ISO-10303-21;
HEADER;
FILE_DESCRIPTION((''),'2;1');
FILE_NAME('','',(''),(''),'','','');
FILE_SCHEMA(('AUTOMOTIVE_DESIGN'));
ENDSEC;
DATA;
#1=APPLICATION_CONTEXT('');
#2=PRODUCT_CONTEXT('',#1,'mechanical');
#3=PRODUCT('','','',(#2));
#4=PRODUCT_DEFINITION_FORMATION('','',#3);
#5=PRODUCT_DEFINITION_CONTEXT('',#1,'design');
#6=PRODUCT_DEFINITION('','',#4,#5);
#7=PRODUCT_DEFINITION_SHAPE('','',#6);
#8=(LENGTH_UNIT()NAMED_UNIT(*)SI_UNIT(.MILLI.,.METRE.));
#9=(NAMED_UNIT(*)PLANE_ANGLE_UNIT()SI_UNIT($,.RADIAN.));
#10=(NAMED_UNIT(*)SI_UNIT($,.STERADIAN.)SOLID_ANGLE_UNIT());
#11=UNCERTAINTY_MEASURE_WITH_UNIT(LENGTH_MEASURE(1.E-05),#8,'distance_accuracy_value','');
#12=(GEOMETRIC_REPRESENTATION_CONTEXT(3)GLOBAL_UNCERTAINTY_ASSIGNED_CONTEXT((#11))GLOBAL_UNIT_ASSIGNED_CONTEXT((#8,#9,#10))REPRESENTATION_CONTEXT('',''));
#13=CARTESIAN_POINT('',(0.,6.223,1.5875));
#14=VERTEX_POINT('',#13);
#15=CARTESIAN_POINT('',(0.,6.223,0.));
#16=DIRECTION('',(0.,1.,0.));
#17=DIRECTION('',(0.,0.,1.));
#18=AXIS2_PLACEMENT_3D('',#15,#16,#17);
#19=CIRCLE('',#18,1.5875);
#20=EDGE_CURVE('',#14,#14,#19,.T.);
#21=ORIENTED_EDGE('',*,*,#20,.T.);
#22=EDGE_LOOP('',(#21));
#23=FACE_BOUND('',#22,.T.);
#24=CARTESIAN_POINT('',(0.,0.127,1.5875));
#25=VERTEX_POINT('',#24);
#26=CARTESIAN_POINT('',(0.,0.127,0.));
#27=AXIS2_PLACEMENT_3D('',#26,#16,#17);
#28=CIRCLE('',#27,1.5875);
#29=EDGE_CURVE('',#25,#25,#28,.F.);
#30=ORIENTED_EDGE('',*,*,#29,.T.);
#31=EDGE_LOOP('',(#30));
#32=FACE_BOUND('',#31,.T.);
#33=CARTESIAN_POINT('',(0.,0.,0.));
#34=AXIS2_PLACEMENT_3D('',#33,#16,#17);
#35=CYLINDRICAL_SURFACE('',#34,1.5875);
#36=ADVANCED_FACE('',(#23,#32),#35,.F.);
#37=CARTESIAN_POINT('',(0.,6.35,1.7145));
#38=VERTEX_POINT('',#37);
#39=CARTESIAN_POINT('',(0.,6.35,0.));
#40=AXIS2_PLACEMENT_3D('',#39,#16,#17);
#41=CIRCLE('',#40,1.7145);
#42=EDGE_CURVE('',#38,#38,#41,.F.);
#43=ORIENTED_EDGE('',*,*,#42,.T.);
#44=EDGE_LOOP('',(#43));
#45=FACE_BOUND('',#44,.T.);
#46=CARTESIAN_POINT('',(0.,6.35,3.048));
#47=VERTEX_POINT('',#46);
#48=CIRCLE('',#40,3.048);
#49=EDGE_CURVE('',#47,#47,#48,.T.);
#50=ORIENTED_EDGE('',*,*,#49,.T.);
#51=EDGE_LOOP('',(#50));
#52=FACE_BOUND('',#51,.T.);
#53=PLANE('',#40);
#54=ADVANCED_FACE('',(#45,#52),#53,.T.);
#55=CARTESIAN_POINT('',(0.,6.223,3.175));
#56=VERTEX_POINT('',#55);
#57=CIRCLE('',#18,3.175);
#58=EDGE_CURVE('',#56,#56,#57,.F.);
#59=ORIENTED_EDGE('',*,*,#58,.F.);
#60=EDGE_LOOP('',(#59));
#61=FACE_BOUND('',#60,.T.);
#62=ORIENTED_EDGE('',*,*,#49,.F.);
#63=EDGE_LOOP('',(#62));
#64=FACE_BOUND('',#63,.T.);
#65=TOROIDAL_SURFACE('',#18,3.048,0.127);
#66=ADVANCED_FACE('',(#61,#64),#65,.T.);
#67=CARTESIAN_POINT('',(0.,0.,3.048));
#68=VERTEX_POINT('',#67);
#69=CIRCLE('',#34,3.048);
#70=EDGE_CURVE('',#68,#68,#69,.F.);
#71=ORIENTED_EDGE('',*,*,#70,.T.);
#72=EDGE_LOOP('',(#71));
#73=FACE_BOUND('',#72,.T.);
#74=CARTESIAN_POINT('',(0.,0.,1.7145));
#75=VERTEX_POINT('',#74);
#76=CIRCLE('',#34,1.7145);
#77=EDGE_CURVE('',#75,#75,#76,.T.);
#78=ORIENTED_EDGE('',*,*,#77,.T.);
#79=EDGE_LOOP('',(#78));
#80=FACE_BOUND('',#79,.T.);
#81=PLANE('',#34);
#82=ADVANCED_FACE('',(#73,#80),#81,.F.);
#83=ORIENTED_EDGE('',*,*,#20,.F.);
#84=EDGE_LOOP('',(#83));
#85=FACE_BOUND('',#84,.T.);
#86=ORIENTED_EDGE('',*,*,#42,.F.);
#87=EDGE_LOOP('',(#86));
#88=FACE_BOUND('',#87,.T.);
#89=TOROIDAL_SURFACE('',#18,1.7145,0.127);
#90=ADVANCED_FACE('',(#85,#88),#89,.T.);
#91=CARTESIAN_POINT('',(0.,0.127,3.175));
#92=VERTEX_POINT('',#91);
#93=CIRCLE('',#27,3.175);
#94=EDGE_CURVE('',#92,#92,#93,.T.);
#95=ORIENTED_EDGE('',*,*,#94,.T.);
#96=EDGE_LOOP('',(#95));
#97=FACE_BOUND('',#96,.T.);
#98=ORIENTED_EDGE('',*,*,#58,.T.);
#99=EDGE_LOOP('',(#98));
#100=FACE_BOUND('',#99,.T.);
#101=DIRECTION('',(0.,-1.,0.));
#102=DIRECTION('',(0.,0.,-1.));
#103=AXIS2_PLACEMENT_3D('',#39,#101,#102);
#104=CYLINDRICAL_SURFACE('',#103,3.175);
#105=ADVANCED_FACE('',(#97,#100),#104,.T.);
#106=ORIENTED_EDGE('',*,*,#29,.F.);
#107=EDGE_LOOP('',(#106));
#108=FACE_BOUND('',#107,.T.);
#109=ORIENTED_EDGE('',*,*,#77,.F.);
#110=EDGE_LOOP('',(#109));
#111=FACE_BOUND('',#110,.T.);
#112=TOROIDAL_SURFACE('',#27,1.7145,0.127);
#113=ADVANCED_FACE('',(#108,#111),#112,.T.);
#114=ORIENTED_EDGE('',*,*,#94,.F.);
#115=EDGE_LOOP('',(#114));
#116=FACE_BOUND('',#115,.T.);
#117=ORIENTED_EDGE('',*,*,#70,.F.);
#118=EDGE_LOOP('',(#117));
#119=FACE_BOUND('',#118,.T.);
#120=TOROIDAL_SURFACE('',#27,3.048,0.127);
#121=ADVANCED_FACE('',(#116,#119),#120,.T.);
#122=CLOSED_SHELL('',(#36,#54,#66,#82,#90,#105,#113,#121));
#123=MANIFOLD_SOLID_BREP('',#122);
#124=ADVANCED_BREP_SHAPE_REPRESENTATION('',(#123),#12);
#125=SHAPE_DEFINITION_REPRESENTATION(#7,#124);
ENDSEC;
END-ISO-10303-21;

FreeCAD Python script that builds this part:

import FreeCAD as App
import Part
import Sketcher
from FreeCAD import Vector
Q = App.Units.Quantity


def edges_at(feature, points):
    """Names of the edges that pass closest to the given points."""
    edges = feature.Shape.Edges
    near = lambda p: min(range(len(edges)), key=lambda i: edges[i].distToShape(Part.Vertex(*p))[0])
    return sorted({f"Edge{near(p) + 1}" for p in points})

doc = App.newDocument("Part")
params = doc.addObject("Spreadsheet::Sheet", "Params")
for row, (alias, value) in enumerate([
    ("sketch1_diameter", "0.25 in"),
    ("pad1_length", "0.25 in"),
    ("sketch2_diameter", "0.125 in"),
    ("fillet_radius", "0.005 in"),
], start=1):
    params.set(f"A{row}", alias)
    params.set(f"B{row}", "=" + value)
    params.setAlias(f"B{row}", alias)

body = doc.addObject("PartDesign::Body", "Body")

# Sketch on XZ plane
sketch1 = doc.addObject("Sketcher::SketchObject", "Sketch")
body.addObject(sketch1)
sketch1.AttachmentSupport = (doc.XZ_Plane, [""])
sketch1.MapMode = "FlatFace"
sketch1.addGeometry(Part.Circle(Vector(0, 0, 0), Vector(0, 0, 1), 3.175), False)
sketch1.addConstraint([
    Sketcher.Constraint("Coincident", 0, 3, -1, 1),
    Sketcher.Constraint("Diameter", 0, Q("0.25 in")),
])
sketch1.setExpression("Constraints[1]", "Params.sketch1_diameter")
pad1 = doc.addObject("PartDesign::Pad", "Pad")
body.addObject(pad1)
pad1.Profile = sketch1
pad1.setExpression("Length", "Params.pad1_length")
pad1.Reversed = True

# Sketch on XZ plane
sketch2 = doc.addObject("Sketcher::SketchObject", "Sketch001")
body.addObject(sketch2)
sketch2.AttachmentSupport = (doc.XZ_Plane, [""])
sketch2.MapMode = "FlatFace"
sketch2.AttachmentOffset = App.Placement(Vector(0, 0, -0.25 * 25.4), App.Rotation())
sketch2.addGeometry(Part.Circle(Vector(0, 0, 0), Vector(0, 0, 1), 1.5875), False)
sketch2.addConstraint([
    Sketcher.Constraint("Coincident", 0, 3, -1, 1),
    Sketcher.Constraint("Diameter", 0, Q("0.125 in")),
])
sketch2.setExpression("Constraints[1]", "Params.sketch2_diameter")
pocket1 = doc.addObject("PartDesign::Pocket", "Pocket")
body.addObject(pocket1)
pocket1.Profile = sketch2
pocket1.Type = "ThroughAll"
pocket1.Reversed = True
doc.recompute()

fillet = doc.addObject("PartDesign::Fillet", "Fillet")
body.addObject(fillet)
fillet.Base = (pocket1, edges_at(pocket1, [
    (0, 0, -3.175),
    (0, 6.35, -3.175),
    (0, 0, -1.587),
    (0, 6.35, -1.587),
]))
fillet.setExpression("Radius", "Params.fillet_radius")

doc.recompute()
